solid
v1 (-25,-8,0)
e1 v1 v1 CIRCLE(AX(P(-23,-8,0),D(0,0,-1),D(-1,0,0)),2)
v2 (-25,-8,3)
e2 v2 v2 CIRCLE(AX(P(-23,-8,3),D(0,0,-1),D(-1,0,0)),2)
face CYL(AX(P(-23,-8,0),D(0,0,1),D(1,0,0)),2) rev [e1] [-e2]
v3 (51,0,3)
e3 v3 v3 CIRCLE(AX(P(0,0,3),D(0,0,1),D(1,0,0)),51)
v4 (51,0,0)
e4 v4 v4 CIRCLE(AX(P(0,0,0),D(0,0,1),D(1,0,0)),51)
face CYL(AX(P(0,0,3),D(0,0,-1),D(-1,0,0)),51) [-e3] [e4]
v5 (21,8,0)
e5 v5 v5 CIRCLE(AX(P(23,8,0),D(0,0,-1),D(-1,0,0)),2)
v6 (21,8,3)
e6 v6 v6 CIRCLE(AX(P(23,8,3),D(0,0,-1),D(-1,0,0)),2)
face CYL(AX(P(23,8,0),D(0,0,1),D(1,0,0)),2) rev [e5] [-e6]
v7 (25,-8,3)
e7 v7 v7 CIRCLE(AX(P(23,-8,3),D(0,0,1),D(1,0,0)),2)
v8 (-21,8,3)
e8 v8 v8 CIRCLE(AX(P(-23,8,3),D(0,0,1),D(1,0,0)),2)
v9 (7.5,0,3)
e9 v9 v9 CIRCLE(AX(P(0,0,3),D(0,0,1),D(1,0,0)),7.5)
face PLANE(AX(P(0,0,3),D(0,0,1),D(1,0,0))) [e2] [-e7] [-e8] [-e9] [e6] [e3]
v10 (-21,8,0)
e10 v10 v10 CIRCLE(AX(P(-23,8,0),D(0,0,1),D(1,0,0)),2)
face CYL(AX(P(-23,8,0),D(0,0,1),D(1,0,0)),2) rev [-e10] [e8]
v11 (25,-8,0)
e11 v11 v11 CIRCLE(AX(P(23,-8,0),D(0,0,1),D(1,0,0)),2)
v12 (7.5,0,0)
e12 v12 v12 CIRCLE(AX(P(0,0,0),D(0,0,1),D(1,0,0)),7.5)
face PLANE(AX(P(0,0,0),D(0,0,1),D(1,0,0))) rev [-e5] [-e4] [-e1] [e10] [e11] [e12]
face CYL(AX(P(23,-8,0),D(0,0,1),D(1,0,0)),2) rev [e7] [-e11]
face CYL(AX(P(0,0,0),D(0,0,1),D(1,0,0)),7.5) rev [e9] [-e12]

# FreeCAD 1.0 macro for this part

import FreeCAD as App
import Part
import Sketcher
from FreeCAD import Vector

doc = App.newDocument("Part")
body = doc.addObject("PartDesign::Body", "Body")

# Sketch on XY plane
sketch1 = doc.addObject("Sketcher::SketchObject", "Sketch")
body.addObject(sketch1)
sketch1.AttachmentSupport = (doc.XY_Plane, [""])
sketch1.MapMode = "FlatFace"
sketch1.addGeometry(Part.Circle(Vector(0, 0, 0), Vector(0, 0, 1), 51), False)
sketch1.addConstraint(Sketcher.Constraint("Coincident", 0, 3, -1, 1))
sketch1.addConstraint(Sketcher.Constraint("Diameter", 0, 102.0))
pad1 = doc.addObject("PartDesign::Pad", "Pad")
body.addObject(pad1)
pad1.Profile = sketch1
pad1.Length = 3

# Sketch on XY plane
sketch2 = doc.addObject("Sketcher::SketchObject", "Sketch001")
body.addObject(sketch2)
sketch2.AttachmentSupport = (doc.XY_Plane, [""])
sketch2.MapMode = "FlatFace"
sketch2.AttachmentOffset = App.Placement(Vector(0, 0, 3), App.Rotation())
sketch2.addGeometry(Part.Circle(Vector(0, 0, 0), Vector(0, 0, 1), 7.5), False)
sketch2.addConstraint(Sketcher.Constraint("Coincident", 0, 3, -1, 1))
sketch2.addConstraint(Sketcher.Constraint("Diameter", 0, 15.0))
pocket1 = doc.addObject("PartDesign::Pocket", "Pocket")
body.addObject(pocket1)
pocket1.Profile = sketch2
pocket1.Length = 3

# Sketch on XY plane
sketch3 = doc.addObject("Sketcher::SketchObject", "Sketch002")
body.addObject(sketch3)
sketch3.AttachmentSupport = (doc.XY_Plane, [""])
sketch3.MapMode = "FlatFace"
sketch3.AttachmentOffset = App.Placement(Vector(0, 0, 3), App.Rotation())
sketch3.addGeometry(Part.Circle(Vector(-23, 8, 0), Vector(0, 0, 1), 2), False)
sketch3.addGeometry(Part.Circle(Vector(-23, -8, 0), Vector(0, 0, 1), 2), False)
sketch3.addGeometry(Part.Circle(Vector(23, -8, 0), Vector(0, 0, 1), 2), False)
sketch3.addGeometry(Part.Circle(Vector(23, 8, 0), Vector(0, 0, 1), 2), False)
sketch3.addConstraint(Sketcher.Constraint("Equal", 0, 1))
sketch3.addConstraint(Sketcher.Constraint("Equal", 1, 2))
sketch3.addConstraint(Sketcher.Constraint("Equal", 2, 3))
sketch3.addConstraint(Sketcher.Constraint("Symmetric", 0, 3, 2, 3, -1, 1))
sketch3.addConstraint(Sketcher.Constraint("Symmetric", 1, 3, 3, 3, -1, 1))
sketch3.addConstraint(Sketcher.Constraint("Symmetric", 1, 3, 2, 3, -2))
sketch3.addConstraint(Sketcher.Constraint("Diameter", 0, 4.0))
sketch3.addConstraint(Sketcher.Constraint("DistanceX", 0, 3, -1, 1, 23.0))
sketch3.addConstraint(Sketcher.Constraint("DistanceY", -1, 1, 0, 3, 8.0))
pocket2 = doc.addObject("PartDesign::Pocket", "Pocket001")
body.addObject(pocket2)
pocket2.Profile = sketch3
pocket2.Length = 3

doc.recompute()
